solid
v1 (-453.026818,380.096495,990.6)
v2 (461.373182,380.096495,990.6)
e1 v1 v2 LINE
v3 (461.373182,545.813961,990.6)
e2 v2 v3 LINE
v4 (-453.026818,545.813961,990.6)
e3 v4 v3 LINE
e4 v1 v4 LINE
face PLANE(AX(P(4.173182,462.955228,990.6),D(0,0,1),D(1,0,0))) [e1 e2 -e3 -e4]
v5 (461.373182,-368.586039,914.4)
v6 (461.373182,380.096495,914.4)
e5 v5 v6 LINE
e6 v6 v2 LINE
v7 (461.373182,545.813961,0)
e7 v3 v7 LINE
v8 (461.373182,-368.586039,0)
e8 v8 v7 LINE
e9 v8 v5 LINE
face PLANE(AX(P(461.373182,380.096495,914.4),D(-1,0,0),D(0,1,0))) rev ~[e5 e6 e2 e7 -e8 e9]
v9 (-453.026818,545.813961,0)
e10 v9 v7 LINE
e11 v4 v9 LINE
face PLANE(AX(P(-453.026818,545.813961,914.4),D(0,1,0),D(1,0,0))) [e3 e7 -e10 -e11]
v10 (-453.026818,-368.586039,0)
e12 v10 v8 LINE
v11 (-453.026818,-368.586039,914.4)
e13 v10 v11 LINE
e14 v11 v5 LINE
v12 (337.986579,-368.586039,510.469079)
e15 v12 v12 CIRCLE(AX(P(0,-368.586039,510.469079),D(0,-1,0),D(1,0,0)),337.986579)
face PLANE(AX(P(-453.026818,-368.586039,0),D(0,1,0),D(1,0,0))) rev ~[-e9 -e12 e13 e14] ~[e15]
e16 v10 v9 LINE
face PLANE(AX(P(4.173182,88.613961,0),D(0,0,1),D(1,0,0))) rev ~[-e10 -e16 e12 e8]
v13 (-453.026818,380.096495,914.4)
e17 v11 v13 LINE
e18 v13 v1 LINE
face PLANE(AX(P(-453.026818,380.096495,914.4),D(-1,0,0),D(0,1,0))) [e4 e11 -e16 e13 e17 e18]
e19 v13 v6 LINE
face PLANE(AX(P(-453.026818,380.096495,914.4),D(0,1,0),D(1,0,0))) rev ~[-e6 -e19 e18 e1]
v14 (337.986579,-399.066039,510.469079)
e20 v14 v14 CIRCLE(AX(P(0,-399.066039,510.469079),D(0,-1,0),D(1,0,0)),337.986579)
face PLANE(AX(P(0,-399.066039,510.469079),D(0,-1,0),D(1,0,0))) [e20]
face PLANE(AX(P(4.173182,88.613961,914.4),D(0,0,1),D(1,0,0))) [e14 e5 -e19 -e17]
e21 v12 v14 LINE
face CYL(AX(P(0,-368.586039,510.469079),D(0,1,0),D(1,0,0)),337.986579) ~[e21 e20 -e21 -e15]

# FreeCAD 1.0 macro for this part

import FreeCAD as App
import Part
import Sketcher
from FreeCAD import Vector
Q = App.Units.Quantity


def add_polygon(sketch, points):
    """Adds a closed chain of lines whose ends are joined by coincident constraints."""
    first, n = sketch.GeometryCount, len(points)
    for a, b in zip(points, points[1:] + points[:1]):
        sketch.addGeometry(Part.LineSegment(App.Vector(*a, 0), App.Vector(*b, 0)), False)
    for i in range(n):
        sketch.addConstraint(Sketcher.Constraint("Coincident", first + i, 2, first + (i + 1) % n, 1))

doc = App.newDocument("Part")
body = doc.addObject("PartDesign::Body", "Body")

# Sketch on XY plane
sketch1 = body.newObject("Sketcher::SketchObject", "Sketch")
sketch1.AttachmentSupport = (doc.getObject("XY_Plane"), [""])
sketch1.MapMode = "FlatFace"
add_polygon(sketch1, [(-453, 546), (-453, -369), (461, -369), (461, 546)])  # lines 0-3
sketch1.addConstraint(Sketcher.Constraint("Vertical", 0))
sketch1.addConstraint(Sketcher.Constraint("Horizontal", 1))
sketch1.addConstraint(Sketcher.Constraint("Vertical", 2))
sketch1.addConstraint(Sketcher.Constraint("Horizontal", 3))
sketch1.addConstraint(Sketcher.Constraint("Equal", 3, 0))
sketch1.addConstraint(Sketcher.Constraint("DistanceX", 1, 1, 1, 2, Q("36 in")))
sketch1.addConstraint(Sketcher.Constraint("DistanceX", 0, 2, -1, 1, 453.026818))
sketch1.addConstraint(Sketcher.Constraint("DistanceY", 0, 2, -1, 1, 368.586039))
pad1 = body.newObject("PartDesign::Pad", "Pad")
pad1.Profile = sketch1
pad1.Length = Q("36 in")

# Sketch on XY plane
sketch2 = body.newObject("Sketcher::SketchObject", "Sketch001")
sketch2.AttachmentSupport = (doc.getObject("XY_Plane"), [""])
sketch2.MapMode = "FlatFace"
sketch2.AttachmentOffset = App.Placement(Vector(0, 0, 36 * 25.4), App.Rotation())
add_polygon(sketch2, [(-453, 546), (-453, 380), (461, 380), (461, 546)])  # lines 0-3
sketch2.addConstraint(Sketcher.Constraint("Vertical", 0))
sketch2.addConstraint(Sketcher.Constraint("Horizontal", 1))
sketch2.addConstraint(Sketcher.Constraint("Vertical", 2))
sketch2.addConstraint(Sketcher.Constraint("Horizontal", 3))
sketch2.addConstraint(Sketcher.Constraint("DistanceX", 1, 1, 1, 2, Q("36 in")))
sketch2.addConstraint(Sketcher.Constraint("DistanceY", 0, 2, 0, 1, 165.717466))
sketch2.addConstraint(Sketcher.Constraint("DistanceX", 0, 2, -1, 1, 453.026818))
sketch2.addConstraint(Sketcher.Constraint("DistanceY", -1, 1, 2, 2, 545.813961))
pad2 = body.newObject("PartDesign::Pad", "Pad001")
pad2.Profile = sketch2
pad2.Length = Q("3 in")

# Sketch on XZ plane
sketch3 = body.newObject("Sketcher::SketchObject", "Sketch002")
sketch3.AttachmentSupport = (doc.getObject("XZ_Plane"), [""])
sketch3.MapMode = "FlatFace"
sketch3.AttachmentOffset = App.Placement(Vector(0, 0, 368.586039), App.Rotation())
sketch3.addGeometry(Part.Circle(Vector(0, 510, 0), Vector(0, 0, 1), 338), False)
sketch3.addConstraint(Sketcher.Constraint("PointOnObject", 0, 3, -2))
sketch3.addConstraint(Sketcher.Constraint("Diameter", 0, 675.973158))
sketch3.addConstraint(Sketcher.Constraint("DistanceY", -1, 1, 0, 3, 510.469079))
pad3 = body.newObject("PartDesign::Pad", "Pad002")
pad3.Profile = sketch3
pad3.Length = Q("1.2 in")

doc.recompute()
